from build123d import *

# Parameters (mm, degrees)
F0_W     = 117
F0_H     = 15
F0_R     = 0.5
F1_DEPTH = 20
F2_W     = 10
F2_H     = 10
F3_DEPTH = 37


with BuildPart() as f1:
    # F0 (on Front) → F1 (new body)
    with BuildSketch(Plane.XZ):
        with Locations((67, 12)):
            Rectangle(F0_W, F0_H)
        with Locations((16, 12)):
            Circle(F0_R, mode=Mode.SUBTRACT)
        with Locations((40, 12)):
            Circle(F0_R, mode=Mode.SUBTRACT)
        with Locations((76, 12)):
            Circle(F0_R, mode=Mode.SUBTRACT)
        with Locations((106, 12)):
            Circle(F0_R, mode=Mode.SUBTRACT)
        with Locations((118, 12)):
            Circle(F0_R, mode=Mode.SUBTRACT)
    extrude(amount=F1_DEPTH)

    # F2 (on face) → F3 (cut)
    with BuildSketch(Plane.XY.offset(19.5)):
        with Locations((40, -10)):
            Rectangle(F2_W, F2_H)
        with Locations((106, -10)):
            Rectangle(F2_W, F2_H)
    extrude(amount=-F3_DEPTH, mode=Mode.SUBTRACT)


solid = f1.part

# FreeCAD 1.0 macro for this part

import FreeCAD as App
import Part
import Sketcher

V = App.Vector

doc = App.newDocument("Part")
params = doc.addObject("Spreadsheet::Sheet", "Params")
for row, (alias, value) in enumerate([
    ("sketch1_diameter", "1 mm"),
    ("sketch1_width", "117 mm"),
    ("sketch1_height", "15 mm"),
    ("pad1_length", "20 mm"),
    ("sketch2_width", "10 mm"),
    ("pocket1_length", "37 mm"),
], start=1):
    params.set(f"A{row}", alias)
    params.set(f"B{row}", "=" + value)
    params.setAlias(f"B{row}", alias)

body = doc.addObject("PartDesign::Body", "Body")

sketch1 = body.newObject("Sketcher::SketchObject", "Sketch")
sketch1.AttachmentSupport = (doc.getObject("XZ_Plane"), [""])
sketch1.MapMode = "FlatFace"
sketch1.addGeometry([
    Part.LineSegment(V(8.5, 19.5, 0), V(8.5, 4.5, 0)),
    Part.LineSegment(V(8.5, 4.5, 0), V(125.5, 4.5, 0)),
    Part.LineSegment(V(125.5, 4.5, 0), V(125.5, 19.5, 0)),
    Part.LineSegment(V(125.5, 19.5, 0), V(8.5, 19.5, 0)),
    Part.Circle(V(16, 12, 0), V(0, 0, 1), 0.5),
    Part.Circle(V(40, 12, 0), V(0, 0, 1), 0.5),
    Part.Circle(V(76, 12, 0), V(0, 0, 1), 0.5),
    Part.Circle(V(106, 12, 0), V(0, 0, 1), 0.5),
    Part.Circle(V(118, 12, 0), V(0, 0, 1), 0.5),
], False)
sketch1.addConstraint([
    Sketcher.Constraint("Coincident", 0, 2, 1, 1),
    Sketcher.Constraint("Coincident", 1, 2, 2, 1),
    Sketcher.Constraint("Coincident", 2, 2, 3, 1),
    Sketcher.Constraint("Coincident", 3, 2, 0, 1),
    Sketcher.Constraint("Vertical", 0),
    Sketcher.Constraint("Horizontal", 1),
    Sketcher.Constraint("Vertical", 2),
    Sketcher.Constraint("Horizontal", 3),
    Sketcher.Constraint("Equal", 4, 5),
    Sketcher.Constraint("Equal", 5, 6),
    Sketcher.Constraint("Equal", 6, 7),
    Sketcher.Constraint("Equal", 7, 8),
    Sketcher.Constraint("Horizontal", 4, 3, 5, 3),
    Sketcher.Constraint("Horizontal", 5, 3, 6, 3),
    Sketcher.Constraint("Horizontal", 6, 3, 7, 3),
    Sketcher.Constraint("Horizontal", 7, 3, 8, 3),
    Sketcher.Constraint("Diameter", 4, 1.0),
    Sketcher.Constraint("DistanceX", 1, 1, 1, 2, 117.0),
    Sketcher.Constraint("DistanceY", 0, 2, 0, 1, 15.0),
    Sketcher.Constraint("DistanceX", -1, 1, 4, 3, 16.0),
    Sketcher.Constraint("DistanceY", -1, 1, 4, 3, 12.0),
    Sketcher.Constraint("DistanceX", -1, 1, 5, 3, 40.0),
    Sketcher.Constraint("DistanceX", -1, 1, 6, 3, 76.0),
    Sketcher.Constraint("DistanceX", -1, 1, 7, 3, 106.0),
    Sketcher.Constraint("DistanceX", -1, 1, 8, 3, 118.0),
    Sketcher.Constraint("DistanceX", -1, 1, 0, 2, 8.5),
    Sketcher.Constraint("DistanceY", -1, 1, 0, 2, 4.5),
])
sketch1.setExpression("Constraints[16]", "Params.sketch1_diameter")
sketch1.setExpression("Constraints[17]", "Params.sketch1_width")
sketch1.setExpression("Constraints[18]", "Params.sketch1_height")
pad1 = body.newObject("PartDesign::Pad", "Pad")
pad1.Profile = sketch1
pad1.setExpression("Length", "Params.pad1_length")

sketch2 = body.newObject("Sketcher::SketchObject", "Sketch001")
sketch2.AttachmentSupport = (doc.getObject("XY_Plane"), [""])
sketch2.MapMode = "FlatFace"
sketch2.AttachmentOffset = App.Placement(V(0, 0, 19.5), App.Rotation())
sketch2.addGeometry([
    Part.LineSegment(V(35, -5, 0), V(35, -15, 0)),
    Part.LineSegment(V(35, -15, 0), V(45, -15, 0)),
    Part.LineSegment(V(45, -15, 0), V(45, -5, 0)),
    Part.LineSegment(V(45, -5, 0), V(35, -5, 0)),
    Part.LineSegment(V(101, -5, 0), V(101, -15, 0)),
    Part.LineSegment(V(101, -15, 0), V(111, -15, 0)),
    Part.LineSegment(V(111, -15, 0), V(111, -5, 0)),
    Part.LineSegment(V(111, -5, 0), V(101, -5, 0)),
], False)
sketch2.addConstraint([
    Sketcher.Constraint("Coincident", 0, 2, 1, 1),
    Sketcher.Constraint("Coincident", 1, 2, 2, 1),
    Sketcher.Constraint("Coincident", 2, 2, 3, 1),
    Sketcher.Constraint("Coincident", 3, 2, 0, 1),
    Sketcher.Constraint("Coincident", 4, 2, 5, 1),
    Sketcher.Constraint("Coincident", 5, 2, 6, 1),
    Sketcher.Constraint("Coincident", 6, 2, 7, 1),
    Sketcher.Constraint("Coincident", 7, 2, 4, 1),
    Sketcher.Constraint("Vertical", 0),
    Sketcher.Constraint("Horizontal", 1),
    Sketcher.Constraint("Vertical", 2),
    Sketcher.Constraint("Horizontal", 3),
    Sketcher.Constraint("Vertical", 4),
    Sketcher.Constraint("Horizontal", 5),
    Sketcher.Constraint("Vertical", 6),
    Sketcher.Constraint("Horizontal", 7),
    Sketcher.Constraint("Horizontal", 1, 2, 4, 2),
    Sketcher.Constraint("Horizontal", 3, 2, 6, 2),
    Sketcher.Constraint("Equal", 3, 5),
    Sketcher.Constraint("Equal", 7, 0),
    Sketcher.Constraint("DistanceX", 1, 1, 1, 2, 10.0),
    Sketcher.Constraint("DistanceX", -1, 1, 0, 2, 35.0),
    Sketcher.Constraint("DistanceY", 0, 2, -1, 1, 15.0),
    Sketcher.Constraint("DistanceX", -1, 1, 4, 2, 101.0),
])
sketch2.setExpression("Constraints[20]", "Params.sketch2_width")
pocket1 = body.newObject("PartDesign::Pocket", "Pocket")
pocket1.Profile = sketch2
pocket1.setExpression("Length", "Params.pocket1_length")

doc.recompute()
